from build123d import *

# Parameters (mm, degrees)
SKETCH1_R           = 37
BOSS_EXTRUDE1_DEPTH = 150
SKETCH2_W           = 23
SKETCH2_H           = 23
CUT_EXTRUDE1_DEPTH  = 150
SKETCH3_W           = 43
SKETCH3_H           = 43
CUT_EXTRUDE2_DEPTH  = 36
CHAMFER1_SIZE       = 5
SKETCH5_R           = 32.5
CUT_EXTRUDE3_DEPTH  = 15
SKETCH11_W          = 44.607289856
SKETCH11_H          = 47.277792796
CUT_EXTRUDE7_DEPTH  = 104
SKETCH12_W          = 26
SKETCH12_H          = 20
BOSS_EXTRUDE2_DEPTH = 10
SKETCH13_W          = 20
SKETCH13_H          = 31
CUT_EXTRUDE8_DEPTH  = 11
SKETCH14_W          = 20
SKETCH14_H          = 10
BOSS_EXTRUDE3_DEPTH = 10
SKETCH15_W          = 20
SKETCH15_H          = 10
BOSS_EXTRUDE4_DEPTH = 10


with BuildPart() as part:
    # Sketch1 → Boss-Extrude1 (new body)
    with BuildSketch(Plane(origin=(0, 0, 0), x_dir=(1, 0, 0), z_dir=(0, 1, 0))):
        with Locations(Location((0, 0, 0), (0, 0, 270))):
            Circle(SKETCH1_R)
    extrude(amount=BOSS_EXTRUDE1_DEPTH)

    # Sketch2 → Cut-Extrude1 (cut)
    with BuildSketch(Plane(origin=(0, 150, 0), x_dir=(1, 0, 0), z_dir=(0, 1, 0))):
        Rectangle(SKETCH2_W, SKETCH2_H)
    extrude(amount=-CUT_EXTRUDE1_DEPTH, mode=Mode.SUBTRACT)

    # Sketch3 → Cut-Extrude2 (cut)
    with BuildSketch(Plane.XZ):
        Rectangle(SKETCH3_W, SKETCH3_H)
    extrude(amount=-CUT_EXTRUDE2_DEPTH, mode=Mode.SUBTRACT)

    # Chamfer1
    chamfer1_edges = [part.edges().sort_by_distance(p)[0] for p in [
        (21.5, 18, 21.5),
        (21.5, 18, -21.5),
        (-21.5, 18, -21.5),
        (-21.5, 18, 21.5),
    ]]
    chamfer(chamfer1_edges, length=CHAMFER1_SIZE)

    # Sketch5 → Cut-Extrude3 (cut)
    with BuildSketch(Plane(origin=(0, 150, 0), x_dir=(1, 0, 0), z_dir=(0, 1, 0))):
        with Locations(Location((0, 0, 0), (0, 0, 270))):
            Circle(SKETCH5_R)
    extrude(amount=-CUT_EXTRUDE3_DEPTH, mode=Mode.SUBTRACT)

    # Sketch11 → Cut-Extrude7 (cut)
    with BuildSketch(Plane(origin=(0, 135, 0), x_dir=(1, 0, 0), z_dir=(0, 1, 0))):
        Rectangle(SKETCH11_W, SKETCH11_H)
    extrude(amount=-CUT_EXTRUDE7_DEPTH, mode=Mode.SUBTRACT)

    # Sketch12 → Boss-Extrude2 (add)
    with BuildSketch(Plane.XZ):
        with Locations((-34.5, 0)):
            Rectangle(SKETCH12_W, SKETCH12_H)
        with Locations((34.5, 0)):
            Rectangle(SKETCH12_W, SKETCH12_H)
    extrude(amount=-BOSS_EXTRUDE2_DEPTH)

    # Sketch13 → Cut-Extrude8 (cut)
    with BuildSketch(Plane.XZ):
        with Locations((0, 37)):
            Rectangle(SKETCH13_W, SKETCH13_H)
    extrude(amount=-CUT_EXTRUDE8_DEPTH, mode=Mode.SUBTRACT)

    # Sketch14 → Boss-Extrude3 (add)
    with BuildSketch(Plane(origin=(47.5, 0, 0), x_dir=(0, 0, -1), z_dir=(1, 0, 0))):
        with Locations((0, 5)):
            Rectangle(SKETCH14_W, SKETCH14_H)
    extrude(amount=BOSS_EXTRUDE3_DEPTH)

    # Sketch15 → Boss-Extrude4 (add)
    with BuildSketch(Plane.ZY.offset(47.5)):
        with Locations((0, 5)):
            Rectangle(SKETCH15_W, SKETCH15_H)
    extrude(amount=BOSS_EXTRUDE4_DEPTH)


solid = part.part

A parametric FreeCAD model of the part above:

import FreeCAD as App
import Part
import Sketcher
Q = App.Units.Quantity


def edges_at(feature, points):
    """Names of the edges that pass closest to the given points."""
    edges = feature.Shape.Edges
    near = lambda p: min(range(len(edges)), key=lambda i: edges[i].distToShape(Part.Vertex(*p))[0])
    return sorted({f"Edge{near(p) + 1}" for p in points})


def add_polygon(sketch, points):
    """Adds a closed chain of lines whose ends are joined by coincident constraints."""
    first, n = sketch.GeometryCount, len(points)
    for a, b in zip(points, points[1:] + points[:1]):
        sketch.addGeometry(Part.LineSegment(App.Vector(*a, 0), App.Vector(*b, 0)), False)
    for i in range(n):
        sketch.addConstraint(Sketcher.Constraint("Coincident", first + i, 2, first + (i + 1) % n, 1))

doc = App.newDocument("Part")
body = doc.addObject("PartDesign::Body", "Body")

sketch1 = doc.addObject("Sketcher::SketchObject", "Sketch")
body.addObject(sketch1)
sketch1.AttachmentSupport = (doc.XZ_Plane, [""])
sketch1.MapMode = "FlatFace"
sketch1.addGeometry(Part.Circle(App.Vector(0, 0, 0), App.Vector(0, 0, 1), 37), False)
sketch1.addConstraint([
    Sketcher.Constraint("Coincident", 0, 3, -1, 1),
    Sketcher.Constraint("Diameter", 0, Q("74 mm")),
])
pad1 = doc.addObject("PartDesign::Pad", "Pad")
body.addObject(pad1)
pad1.Profile = sketch1
pad1.Length = 150
pad1.Reversed = True

sketch2 = doc.addObject("Sketcher::SketchObject", "Sketch001")
body.addObject(sketch2)
sketch2.AttachmentSupport = (doc.XZ_Plane, [""])
sketch2.MapMode = "FlatFace"
sketch2.AttachmentOffset = App.Placement(App.Vector(0, 0, -150), App.Rotation())
add_polygon(sketch2, [(-12, -12), (-12, 12), (12, 12), (12, -12)])
sketch2.addConstraint([
    Sketcher.Constraint("Vertical", 0),
    Sketcher.Constraint("Horizontal", 1),
    Sketcher.Constraint("Vertical", 2),
    Sketcher.Constraint("Horizontal", 3),
    Sketcher.Constraint("Symmetric", 0, 2, 2, 2, -1, 1),
    Sketcher.Constraint("Equal", 3, 0),
    Sketcher.Constraint("DistanceX", 1, 1, 1, 2, Q("23 mm")),
])
pocket1 = doc.addObject("PartDesign::Pocket", "Pocket")
body.addObject(pocket1)
pocket1.Profile = sketch2
pocket1.Length = 150
pocket1.Reversed = True

sketch3 = doc.addObject("Sketcher::SketchObject", "Sketch002")
body.addObject(sketch3)
sketch3.AttachmentSupport = (doc.XZ_Plane, [""])
sketch3.MapMode = "FlatFace"
add_polygon(sketch3, [(-22, 22), (-22, -22), (22, -22), (22, 22)])
sketch3.addConstraint([
    Sketcher.Constraint("Vertical", 0),
    Sketcher.Constraint("Horizontal", 1),
    Sketcher.Constraint("Vertical", 2),
    Sketcher.Constraint("Horizontal", 3),
    Sketcher.Constraint("Symmetric", 0, 2, 2, 2, -1, 1),
    Sketcher.Constraint("Equal", 3, 0),
    Sketcher.Constraint("DistanceX", 1, 1, 1, 2, Q("43 mm")),
])
pocket2 = doc.addObject("PartDesign::Pocket", "Pocket001")
body.addObject(pocket2)
pocket2.Profile = sketch3
pocket2.Length = 36
doc.recompute()

chamfer = doc.addObject("PartDesign::Chamfer", "Chamfer")
body.addObject(chamfer)
chamfer.Base = (pocket2, edges_at(pocket2, [
    (21.5, 18, 21.5),
    (21.5, 18, -21.5),
    (-21.5, 18, -21.5),
    (-21.5, 18, 21.5),
]))
chamfer.Size = 5

sketch4 = doc.addObject("Sketcher::SketchObject", "Sketch003")
body.addObject(sketch4)
sketch4.AttachmentSupport = (doc.XZ_Plane, [""])
sketch4.MapMode = "FlatFace"
sketch4.AttachmentOffset = App.Placement(App.Vector(0, 0, -150), App.Rotation())
sketch4.addGeometry(Part.Circle(App.Vector(0, 0, 0), App.Vector(0, 0, 1), 32), False)
sketch4.addConstraint([
    Sketcher.Constraint("Coincident", 0, 3, -1, 1),
    Sketcher.Constraint("Diameter", 0, Q("65 mm")),
])
pocket3 = doc.addObject("PartDesign::Pocket", "Pocket002")
body.addObject(pocket3)
pocket3.Profile = sketch4
pocket3.Length = 15
pocket3.Reversed = True

sketch5 = doc.addObject("Sketcher::SketchObject", "Sketch004")
body.addObject(sketch5)
sketch5.AttachmentSupport = (doc.XZ_Plane, [""])
sketch5.MapMode = "FlatFace"
sketch5.AttachmentOffset = App.Placement(App.Vector(0, 0, -135), App.Rotation())
add_polygon(sketch5, [(-22, -24), (-22, 24), (22, 24), (22, -24)])
sketch5.addConstraint([
    Sketcher.Constraint("Vertical", 0),
    Sketcher.Constraint("Horizontal", 1),
    Sketcher.Constraint("Vertical", 2),
    Sketcher.Constraint("Horizontal", 3),
    Sketcher.Constraint("Symmetric", 0, 2, 2, 2, -1, 1),
    Sketcher.Constraint("DistanceX", 1, 1, 1, 2, Q("44.60729 mm")),
    Sketcher.Constraint("DistanceY", 0, 1, 0, 2, Q("47.277793 mm")),
])
pocket4 = doc.addObject("PartDesign::Pocket", "Pocket003")
body.addObject(pocket4)
pocket4.Profile = sketch5
pocket4.Length = 104
pocket4.Reversed = True

sketch6 = doc.addObject("Sketcher::SketchObject", "Sketch005")
body.addObject(sketch6)
sketch6.AttachmentSupport = (doc.XZ_Plane, [""])
sketch6.MapMode = "FlatFace"
add_polygon(sketch6, [(-48, 10), (-48, -10), (-22, -10), (-22, 10)])
add_polygon(sketch6, [(22, 10), (22, -10), (48, -10), (48, 10)])
sketch6.addConstraint([
    Sketcher.Constraint("Vertical", 0),
    Sketcher.Constraint("Horizontal", 1),
    Sketcher.Constraint("Vertical", 2),
    Sketcher.Constraint("Horizontal", 3),
    Sketcher.Constraint("Vertical", 4),
    Sketcher.Constraint("Horizontal", 5),
    Sketcher.Constraint("Vertical", 6),
    Sketcher.Constraint("Horizontal", 7),
    Sketcher.Constraint("Symmetric", 2, 2, 4, 2, -1, 1),
    Sketcher.Constraint("Symmetric", 0, 2, 6, 2, -1, 1),
    Sketcher.Constraint("Horizontal", 1, 2, 4, 2),
    Sketcher.Constraint("DistanceX", 1, 1, 1, 2, Q("26 mm")),
    Sketcher.Constraint("DistanceY", 0, 2, 0, 1, Q("20 mm")),
    Sketcher.Constraint("DistanceX", 1, 2, 4, 2, Q("43 mm")),
])
pad2 = doc.addObject("PartDesign::Pad", "Pad001")
body.addObject(pad2)
pad2.Profile = sketch6
pad2.Length = 10
pad2.Reversed = True

sketch7 = doc.addObject("Sketcher::SketchObject", "Sketch006")
body.addObject(sketch7)
sketch7.AttachmentSupport = (doc.XZ_Plane, [""])
sketch7.MapMode = "FlatFace"
add_polygon(sketch7, [(-10, 52), (-10, 22), (10, 22), (10, 52)])
sketch7.addConstraint([
    Sketcher.Constraint("Vertical", 0),
    Sketcher.Constraint("Horizontal", 1),
    Sketcher.Constraint("Vertical", 2),
    Sketcher.Constraint("Horizontal", 3),
    Sketcher.Constraint("DistanceX", 1, 1, 1, 2, Q("20 mm")),
    Sketcher.Constraint("DistanceY", 0, 2, 0, 1, Q("31 mm")),
    Sketcher.Constraint("DistanceX", 0, 2, -1, 1, Q("10 mm")),
    Sketcher.Constraint("DistanceY", -1, 1, 0, 2, Q("21.5 mm")),
])
pocket5 = doc.addObject("PartDesign::Pocket", "Pocket004")
body.addObject(pocket5)
pocket5.Profile = sketch7
pocket5.Length = 11

sketch8 = doc.addObject("Sketcher::SketchObject", "Sketch007")
body.addObject(sketch8)
sketch8.AttachmentSupport = (doc.YZ_Plane, [""])
sketch8.MapMode = "FlatFace"
sketch8.AttachmentOffset = App.Placement(App.Vector(0, 0, 47.5), App.Rotation())
add_polygon(sketch8, [(10, 10), (0, 10), (0, -10), (10, -10)])
sketch8.addConstraint([
    Sketcher.Constraint("Horizontal", 0),
    Sketcher.Constraint("Vertical", 1),
    Sketcher.Constraint("Horizontal", 2),
    Sketcher.Constraint("Vertical", 3),
    Sketcher.Constraint("Symmetric", 0, 2, 1, 2, -1, 1),
    Sketcher.Constraint("DistanceX", 0, 2, 0, 1, Q("10 mm")),
    Sketcher.Constraint("DistanceY", 1, 2, 1, 1, Q("20 mm")),
])
pad3 = doc.addObject("PartDesign::Pad", "Pad002")
body.addObject(pad3)
pad3.Profile = sketch8
pad3.Length = 10

sketch9 = doc.addObject("Sketcher::SketchObject", "Sketch008")
body.addObject(sketch9)
sketch9.AttachmentSupport = (doc.YZ_Plane, [""])
sketch9.MapMode = "FlatFace"
sketch9.AttachmentOffset = App.Placement(App.Vector(0, 0, -47.5), App.Rotation())
add_polygon(sketch9, [(10, -10), (0, -10), (0, 10), (10, 10)])
sketch9.addConstraint([
    Sketcher.Constraint("Horizontal", 0),
    Sketcher.Constraint("Vertical", 1),
    Sketcher.Constraint("Horizontal", 2),
    Sketcher.Constraint("Vertical", 3),
    Sketcher.Constraint("Symmetric", 0, 2, 1, 2, -1, 1),
    Sketcher.Constraint("DistanceX", 0, 2, 0, 1, Q("10 mm")),
    Sketcher.Constraint("DistanceY", 1, 1, 1, 2, Q("20 mm")),
])
pad4 = doc.addObject("PartDesign::Pad", "Pad003")
body.addObject(pad4)
pad4.Profile = sketch9
pad4.Length = 10
pad4.Reversed = True

doc.recompute()
